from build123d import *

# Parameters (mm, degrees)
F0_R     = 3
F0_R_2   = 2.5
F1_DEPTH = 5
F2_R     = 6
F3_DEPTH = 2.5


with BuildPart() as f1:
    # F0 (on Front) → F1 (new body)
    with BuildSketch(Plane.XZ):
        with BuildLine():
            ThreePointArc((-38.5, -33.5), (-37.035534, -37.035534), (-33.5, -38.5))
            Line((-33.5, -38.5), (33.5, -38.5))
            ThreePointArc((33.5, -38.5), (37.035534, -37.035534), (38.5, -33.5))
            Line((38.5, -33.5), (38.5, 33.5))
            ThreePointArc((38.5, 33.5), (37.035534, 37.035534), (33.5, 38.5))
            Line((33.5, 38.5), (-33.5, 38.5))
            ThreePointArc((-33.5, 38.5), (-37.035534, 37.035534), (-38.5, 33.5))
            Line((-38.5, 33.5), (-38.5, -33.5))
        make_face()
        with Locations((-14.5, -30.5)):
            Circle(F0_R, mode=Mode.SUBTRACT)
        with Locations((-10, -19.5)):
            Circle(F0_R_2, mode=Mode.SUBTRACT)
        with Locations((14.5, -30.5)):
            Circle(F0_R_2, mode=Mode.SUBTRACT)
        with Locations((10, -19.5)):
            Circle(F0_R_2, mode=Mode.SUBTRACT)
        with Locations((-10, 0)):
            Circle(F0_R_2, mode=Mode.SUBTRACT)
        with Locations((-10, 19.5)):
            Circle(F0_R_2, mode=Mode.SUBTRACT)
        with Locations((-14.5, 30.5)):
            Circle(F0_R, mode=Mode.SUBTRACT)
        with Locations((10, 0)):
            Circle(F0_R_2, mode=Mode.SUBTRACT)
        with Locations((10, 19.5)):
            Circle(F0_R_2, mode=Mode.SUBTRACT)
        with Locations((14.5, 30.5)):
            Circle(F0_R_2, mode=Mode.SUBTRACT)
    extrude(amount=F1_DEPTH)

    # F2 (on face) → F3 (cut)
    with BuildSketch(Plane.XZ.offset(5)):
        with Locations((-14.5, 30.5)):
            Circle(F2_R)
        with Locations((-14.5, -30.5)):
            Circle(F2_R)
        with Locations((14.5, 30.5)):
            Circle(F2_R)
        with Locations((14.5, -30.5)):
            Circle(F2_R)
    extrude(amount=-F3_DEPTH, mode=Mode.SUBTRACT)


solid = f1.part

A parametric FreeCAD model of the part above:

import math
import FreeCAD as App
import Part
import Sketcher

doc = App.newDocument("Part")
body = doc.addObject("PartDesign::Body", "Body")

sketch1 = doc.addObject("Sketcher::SketchObject", "Sketch")
body.addObject(sketch1)
sketch1.AttachmentSupport = (doc.XZ_Plane, [""])
sketch1.MapMode = "FlatFace"
sketch1.addGeometry([
    Part.ArcOfCircle(Part.Circle(App.Vector(-33.5, -33.5, 0), App.Vector(0, 0, 1), 5), math.radians(180), math.radians(270)),
    Part.LineSegment(App.Vector(-33.5, -38.5, 0), App.Vector(33.5, -38.5, 0)),
    Part.ArcOfCircle(Part.Circle(App.Vector(33.5, -33.5, 0), App.Vector(0, 0, 1), 5), math.radians(-90), math.radians(0)),
    Part.LineSegment(App.Vector(38.5, -33.5, 0), App.Vector(38.5, 33.5, 0)),
    Part.ArcOfCircle(Part.Circle(App.Vector(33.5, 33.5, 0), App.Vector(0, 0, 1), 5), math.radians(0), math.radians(90)),
    Part.LineSegment(App.Vector(33.5, 38.5, 0), App.Vector(-33.5, 38.5, 0)),
    Part.ArcOfCircle(Part.Circle(App.Vector(-33.5, 33.5, 0), App.Vector(0, 0, 1), 5), math.radians(90), math.radians(180)),
    Part.LineSegment(App.Vector(-38.5, 33.5, 0), App.Vector(-38.5, -33.5, 0)),
    Part.Circle(App.Vector(-14.5, -30.5, 0), App.Vector(0, 0, 1), 3),
    Part.Circle(App.Vector(-10, -19.5, 0), App.Vector(0, 0, 1), 2.5),
    Part.Circle(App.Vector(14.5, -30.5, 0), App.Vector(0, 0, 1), 2.5),
    Part.Circle(App.Vector(10, -19.5, 0), App.Vector(0, 0, 1), 2.5),
    Part.Circle(App.Vector(-10, 0, 0), App.Vector(0, 0, 1), 2.5),
    Part.Circle(App.Vector(-10, 19.5, 0), App.Vector(0, 0, 1), 2.5),
    Part.Circle(App.Vector(-14.5, 30.5, 0), App.Vector(0, 0, 1), 3),
    Part.Circle(App.Vector(10, 0, 0), App.Vector(0, 0, 1), 2.5),
    Part.Circle(App.Vector(10, 19.5, 0), App.Vector(0, 0, 1), 2.5),
    Part.Circle(App.Vector(14.5, 30.5, 0), App.Vector(0, 0, 1), 2.5),
], False)
sketch1.addConstraint([
    Sketcher.Constraint("Tangent", 0, 2, 1, 1),
    Sketcher.Constraint("Tangent", 1, 2, 2, 1),
    Sketcher.Constraint("Tangent", 2, 2, 3, 1),
    Sketcher.Constraint("Tangent", 3, 2, 4, 1),
    Sketcher.Constraint("Tangent", 4, 2, 5, 1),
    Sketcher.Constraint("Tangent", 5, 2, 6, 1),
    Sketcher.Constraint("Tangent", 6, 2, 7, 1),
    Sketcher.Constraint("Tangent", 7, 2, 0, 1),
    Sketcher.Constraint("Horizontal", 1),
    Sketcher.Constraint("Vertical", 3),
    Sketcher.Constraint("Horizontal", 5),
    Sketcher.Constraint("Vertical", 7),
    Sketcher.Constraint("Equal", 0, 2),
    Sketcher.Constraint("Equal", 2, 4),
    Sketcher.Constraint("Equal", 4, 6),
    Sketcher.Constraint("Equal", 9, 10),
    Sketcher.Constraint("Equal", 10, 11),
    Sketcher.Constraint("Equal", 11, 12),
    Sketcher.Constraint("Equal", 12, 13),
    Sketcher.Constraint("Equal", 8, 14),
    Sketcher.Constraint("Equal", 13, 15),
    Sketcher.Constraint("Equal", 15, 16),
    Sketcher.Constraint("Equal", 16, 17),
    Sketcher.Constraint("Symmetric", 0, 3, 4, 3, -1, 1),
    Sketcher.Constraint("Symmetric", 11, 3, 13, 3, -1, 1),
    Sketcher.Constraint("Symmetric", 10, 3, 14, 3, -1, 1),
    Sketcher.Constraint("Symmetric", 12, 3, 15, 3, -1, 1),
    Sketcher.Constraint("Symmetric", 9, 3, 16, 3, -1, 1),
    Sketcher.Constraint("Symmetric", 8, 3, 17, 3, -1, 1),
    Sketcher.Constraint("Symmetric", 8, 3, 10, 3, -2),
    Sketcher.Constraint("Symmetric", 9, 3, 11, 3, -2),
    Sketcher.Constraint("PointOnObject", 12, 3, -1),
    Sketcher.Constraint("Vertical", 9, 3, 12, 3),
    Sketcher.Constraint("Equal", 5, 3),
    Sketcher.Constraint("Diameter", 8, 6.0),
    Sketcher.Constraint("Diameter", 9, 5.0),
    Sketcher.Constraint("Radius", 0, 5.0),
    Sketcher.Constraint("DistanceX", 1, 1, 1, 2, 67.0),
    Sketcher.Constraint("DistanceX", 9, 3, -1, 1, 10.0),
    Sketcher.Constraint("DistanceX", 0, 3, 8, 3, 19.0),
    Sketcher.Constraint("DistanceY", 0, 3, 8, 3, 3.0),
    Sketcher.Constraint("DistanceY", 8, 3, 9, 3, 11.0),
])
pad1 = doc.addObject("PartDesign::Pad", "Pad")
body.addObject(pad1)
pad1.Profile = sketch1
pad1.Length = 5

sketch2 = doc.addObject("Sketcher::SketchObject", "Sketch001")
body.addObject(sketch2)
sketch2.AttachmentSupport = (doc.XZ_Plane, [""])
sketch2.MapMode = "FlatFace"
sketch2.AttachmentOffset = App.Placement(App.Vector(0, 0, 5), App.Rotation())
sketch2.addGeometry([
    Part.Circle(App.Vector(-14, 30, 0), App.Vector(0, 0, 1), 6),
    Part.Circle(App.Vector(-14, -30, 0), App.Vector(0, 0, 1), 6),
    Part.Circle(App.Vector(14, 30, 0), App.Vector(0, 0, 1), 6),
    Part.Circle(App.Vector(14, -30, 0), App.Vector(0, 0, 1), 6),
], False)
sketch2.addConstraint([
    Sketcher.Constraint("Equal", 0, 1),
    Sketcher.Constraint("Equal", 1, 2),
    Sketcher.Constraint("Equal", 2, 3),
    Sketcher.Constraint("Symmetric", 1, 3, 2, 3, -1, 1),
    Sketcher.Constraint("Symmetric", 0, 3, 3, 3, -1, 1),
    Sketcher.Constraint("Symmetric", 0, 3, 2, 3, -2),
    Sketcher.Constraint("Diameter", 0, 12.0),
    Sketcher.Constraint("DistanceY", 1, 3, 0, 3, 61.0),
    Sketcher.Constraint("DistanceX", 0, 3, 2, 3, 29.0),
])
pocket1 = doc.addObject("PartDesign::Pocket", "Pocket")
body.addObject(pocket1)
pocket1.Profile = sketch2
pocket1.Length = 2.5

doc.recompute()
